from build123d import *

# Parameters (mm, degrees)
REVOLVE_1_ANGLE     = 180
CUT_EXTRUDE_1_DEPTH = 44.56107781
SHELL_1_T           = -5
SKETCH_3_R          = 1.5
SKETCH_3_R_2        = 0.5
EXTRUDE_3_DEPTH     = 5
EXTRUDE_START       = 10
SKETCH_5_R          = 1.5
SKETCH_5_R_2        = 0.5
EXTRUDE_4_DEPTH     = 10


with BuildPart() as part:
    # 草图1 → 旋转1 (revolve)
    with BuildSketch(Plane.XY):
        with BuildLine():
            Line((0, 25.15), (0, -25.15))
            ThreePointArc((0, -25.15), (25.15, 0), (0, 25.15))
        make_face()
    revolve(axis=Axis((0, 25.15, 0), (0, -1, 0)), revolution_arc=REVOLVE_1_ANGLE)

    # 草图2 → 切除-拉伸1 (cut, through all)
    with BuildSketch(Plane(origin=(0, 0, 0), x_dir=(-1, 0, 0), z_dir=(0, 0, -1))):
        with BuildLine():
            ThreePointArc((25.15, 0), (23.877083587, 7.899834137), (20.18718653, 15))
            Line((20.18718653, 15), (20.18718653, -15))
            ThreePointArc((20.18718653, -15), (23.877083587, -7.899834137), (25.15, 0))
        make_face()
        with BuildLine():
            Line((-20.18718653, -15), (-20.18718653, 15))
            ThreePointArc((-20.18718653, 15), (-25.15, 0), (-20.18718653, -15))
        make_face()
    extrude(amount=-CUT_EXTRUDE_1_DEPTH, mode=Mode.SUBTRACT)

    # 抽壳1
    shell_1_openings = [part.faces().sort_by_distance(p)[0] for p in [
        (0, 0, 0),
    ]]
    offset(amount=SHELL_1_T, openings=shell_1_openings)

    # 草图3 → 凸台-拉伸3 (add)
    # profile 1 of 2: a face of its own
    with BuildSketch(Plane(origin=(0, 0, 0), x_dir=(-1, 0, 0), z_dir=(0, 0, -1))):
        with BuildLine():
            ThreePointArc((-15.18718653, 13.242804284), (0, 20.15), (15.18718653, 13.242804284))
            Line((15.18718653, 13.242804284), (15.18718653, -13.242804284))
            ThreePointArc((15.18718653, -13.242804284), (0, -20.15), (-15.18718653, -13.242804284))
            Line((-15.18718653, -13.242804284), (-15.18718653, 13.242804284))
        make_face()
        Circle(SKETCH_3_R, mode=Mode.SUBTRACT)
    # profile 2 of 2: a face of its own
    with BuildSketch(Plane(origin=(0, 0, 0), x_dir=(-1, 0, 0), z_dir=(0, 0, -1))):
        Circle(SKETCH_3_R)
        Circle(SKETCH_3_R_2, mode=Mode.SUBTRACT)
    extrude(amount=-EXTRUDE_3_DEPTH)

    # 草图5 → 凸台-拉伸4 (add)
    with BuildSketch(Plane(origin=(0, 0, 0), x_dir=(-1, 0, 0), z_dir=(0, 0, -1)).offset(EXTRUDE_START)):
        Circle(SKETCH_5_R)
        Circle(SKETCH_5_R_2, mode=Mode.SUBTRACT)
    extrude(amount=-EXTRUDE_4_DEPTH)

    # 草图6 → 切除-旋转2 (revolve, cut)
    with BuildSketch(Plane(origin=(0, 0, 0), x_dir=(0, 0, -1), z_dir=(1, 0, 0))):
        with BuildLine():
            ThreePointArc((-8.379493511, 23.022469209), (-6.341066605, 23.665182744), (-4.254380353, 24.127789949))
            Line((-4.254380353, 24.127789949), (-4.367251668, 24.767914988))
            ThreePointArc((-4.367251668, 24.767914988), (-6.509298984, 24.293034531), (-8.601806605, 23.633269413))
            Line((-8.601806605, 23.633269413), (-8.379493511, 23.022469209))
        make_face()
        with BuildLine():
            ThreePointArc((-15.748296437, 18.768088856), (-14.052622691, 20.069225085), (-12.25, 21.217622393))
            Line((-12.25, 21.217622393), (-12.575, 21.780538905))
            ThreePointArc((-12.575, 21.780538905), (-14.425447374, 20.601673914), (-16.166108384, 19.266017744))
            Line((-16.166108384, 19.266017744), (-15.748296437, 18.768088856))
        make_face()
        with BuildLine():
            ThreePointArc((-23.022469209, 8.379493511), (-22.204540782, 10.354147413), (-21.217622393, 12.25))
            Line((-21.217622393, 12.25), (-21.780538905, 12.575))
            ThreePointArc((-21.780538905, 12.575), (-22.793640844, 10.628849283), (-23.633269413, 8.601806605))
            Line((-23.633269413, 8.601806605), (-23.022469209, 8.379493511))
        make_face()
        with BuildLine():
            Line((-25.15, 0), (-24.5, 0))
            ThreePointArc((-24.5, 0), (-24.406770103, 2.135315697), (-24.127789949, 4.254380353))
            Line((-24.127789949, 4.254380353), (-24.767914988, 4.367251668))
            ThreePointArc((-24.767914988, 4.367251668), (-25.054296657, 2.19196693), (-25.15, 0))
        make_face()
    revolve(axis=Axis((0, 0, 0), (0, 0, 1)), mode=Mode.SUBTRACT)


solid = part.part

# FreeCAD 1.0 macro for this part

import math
import FreeCAD as App
import Part
import Sketcher

V = App.Vector
Q = App.Units.Quantity


def faces_at(feature, points):
    """Names of the faces that lie closest to the given points."""
    faces = feature.Shape.Faces
    near = lambda p: min(range(len(faces)), key=lambda i: faces[i].distToShape(Part.Vertex(*p))[0])
    return sorted({f"Face{near(p) + 1}" for p in points})

doc = App.newDocument("Part")
params = doc.addObject("Spreadsheet::Sheet", "Params")
for row, (alias, value) in enumerate([
    ("sketch1_radius", "25.15 mm"),
    ("revolution_angle", "180 deg"),
    ("sketch2_height", "30 mm"),
    ("sketch2_radius", "25.15 mm"),
    ("thickness_wall", "5 mm"),
    ("sketch3_diameter", "1 mm"),
    ("sketch3_radius", "20.15 mm"),
    ("pad1_length", "5 mm"),
    ("sketch4_diameter", "3 mm"),
    ("sketch4_diameter2", "1 mm"),
    ("pad2_length", "10 mm"),
    ("sketch5_radius", "24.5 mm"),
    ("sketch5_radius2", "25.15 mm"),
    ("groove_angle", "360 deg"),
], start=1):
    params.set(f"A{row}", alias)
    params.set(f"B{row}", "=" + value)
    params.setAlias(f"B{row}", alias)

body = doc.addObject("PartDesign::Body", "Body")

# Sketch on XY plane
sketch1 = body.newObject("Sketcher::SketchObject", "Sketch")
sketch1.AttachmentSupport = (doc.getObject("XY_Plane"), [""])
sketch1.MapMode = "FlatFace"
sketch1.addGeometry([
    Part.LineSegment(V(0, 25.15, 0), V(0, -25.15, 0)),
    Part.ArcOfCircle(Part.Circle(V(0, 0, 0), V(0, 0, 1), 25.15), math.radians(-90), math.radians(90)),
], False)
sketch1.addConstraint([
    Sketcher.Constraint("Coincident", 0, 1, 1, 2),
    Sketcher.Constraint("Coincident", 1, 1, 0, 2),
    Sketcher.Constraint("Vertical", 0),
    Sketcher.Constraint("Coincident", 1, 3, -1, 1),
    Sketcher.Constraint("PointOnObject", 0, 1, -2),
    Sketcher.Constraint("Radius", 1, Q("25.15 mm")),
])
sketch1.setExpression("Constraints[5]", "Params.sketch1_radius")
revolution = body.newObject("PartDesign::Revolution", "Revolution")
revolution.Profile = sketch1
revolution.ReferenceAxis = (sketch1, ["V_Axis"])
revolution.setExpression("Angle", "Params.revolution_angle")
revolution.Reversed = True

# Sketch on XY plane
sketch2 = body.newObject("Sketcher::SketchObject", "Sketch001")
sketch2.AttachmentSupport = (doc.getObject("XY_Plane"), [""])
sketch2.MapMode = "FlatFace"
sketch2.addGeometry([
    Part.ArcOfCircle(Part.Circle(V(0, 0, 0), V(0, 0, 1), 25.15), math.radians(143.385968), math.radians(180)),  # 0
    Part.LineSegment(V(-20.187187, 15, 0), V(-20.187187, -15, 0)),  # 1
    Part.ArcOfCircle(Part.Circle(V(0, 0, 0), V(0, 0, 1), 25.15), math.radians(180), math.radians(216.614032)),  # 2
    Part.LineSegment(V(20.187187, -15, 0), V(20.187187, 15, 0)),  # 3
    Part.ArcOfCircle(Part.Circle(V(0, 0, 0), V(0, 0, 1), 25.15), math.radians(-36.614032), math.radians(36.614032)),  # 4
], False)
sketch2.addConstraint([
    Sketcher.Constraint("Coincident", 0, 1, 1, 1),
    Sketcher.Constraint("Coincident", 1, 2, 2, 2),
    Sketcher.Constraint("Tangent", 2, 1, 0, 2),
    Sketcher.Constraint("Coincident", 3, 1, 4, 1),
    Sketcher.Constraint("Coincident", 4, 2, 3, 2),
    Sketcher.Constraint("Vertical", 1),
    Sketcher.Constraint("Vertical", 3),
    Sketcher.Constraint("Coincident", 0, 3, -1, 1),
    Sketcher.Constraint("Coincident", 4, 3, -1, 1),
    Sketcher.Constraint("Equal", 0, 2),
    Sketcher.Constraint("Equal", 2, 4),
    Sketcher.Constraint("PointOnObject", 2, 1, -1),
    Sketcher.Constraint("Horizontal", 1, 2, 3, 1),
    Sketcher.Constraint("DistanceY", 1, 2, 1, 1, Q("30 mm")),
    Sketcher.Constraint("Radius", 0, Q("25.15 mm")),
])
sketch2.setExpression("Constraints[13]", "Params.sketch2_height")
sketch2.setExpression("Constraints[14]", "Params.sketch2_radius")
pocket1 = body.newObject("PartDesign::Pocket", "Pocket")
pocket1.Profile = sketch2
pocket1.Type = "ThroughAll"
pocket1.Reversed = True
doc.recompute()

thickness = body.newObject("PartDesign::Thickness", "Thickness")
thickness.Base = (pocket1, faces_at(pocket1, [(0, 0, 0)]))
thickness.setExpression("Value", "Params.thickness_wall")
thickness.Reversed = True
thickness.Join = "Arc"

# Sketch on XY plane
sketch3 = body.newObject("Sketcher::SketchObject", "Sketch002")
sketch3.AttachmentSupport = (doc.getObject("XY_Plane"), [""])
sketch3.MapMode = "FlatFace"
sketch3.addGeometry([
    Part.ArcOfCircle(Part.Circle(V(0, 0, 0), V(0, 0, 1), 20.15), math.radians(41.087523), math.radians(138.912477)),  # 0
    Part.LineSegment(V(15.187187, 13.242804, 0), V(15.187187, -13.242804, 0)),  # 1
    Part.ArcOfCircle(Part.Circle(V(0, 0, 0), V(0, 0, 1), 20.15), math.radians(-138.912477), math.radians(-41.087523)),  # 2
    Part.LineSegment(V(-15.187187, -13.242804, 0), V(-15.187187, 13.242804, 0)),  # 3
    Part.Circle(V(0, 0, 0), V(0, 0, 1), 0.5),  # 4
], False)
sketch3.addConstraint([
    Sketcher.Constraint("Coincident", 0, 1, 1, 1),
    Sketcher.Constraint("Coincident", 1, 2, 2, 2),
    Sketcher.Constraint("Coincident", 2, 1, 3, 1),
    Sketcher.Constraint("Coincident", 3, 2, 0, 2),
    Sketcher.Constraint("Vertical", 1),
    Sketcher.Constraint("Vertical", 3),
    Sketcher.Constraint("Coincident", 0, 3, -1, 1),
    Sketcher.Constraint("Coincident", 2, 3, -1, 1),
    Sketcher.Constraint("Coincident", 4, 3, -1, 1),
    Sketcher.Constraint("Equal", 0, 2),
    Sketcher.Constraint("Horizontal", 1, 2, 2, 1),
    Sketcher.Constraint("Diameter", 4, Q("1 mm")),
    Sketcher.Constraint("Radius", 0, Q("20.15 mm")),
    Sketcher.Constraint("DistanceY", 1, 2, 1, 1, Q("26.485609 mm")),
])
sketch3.setExpression("Constraints[11]", "Params.sketch3_diameter")
sketch3.setExpression("Constraints[12]", "Params.sketch3_radius")
pad1 = body.newObject("PartDesign::Pad", "Pad")
pad1.Profile = sketch3
pad1.setExpression("Length", "Params.pad1_length")

# Sketch on XY plane
sketch4 = body.newObject("Sketcher::SketchObject", "Sketch003")
sketch4.AttachmentSupport = (doc.getObject("XY_Plane"), [""])
sketch4.MapMode = "FlatFace"
sketch4.AttachmentOffset = App.Placement(V(0, 0, -10), App.Rotation())
sketch4.addGeometry([
    Part.Circle(V(0, 0, 0), V(0, 0, 1), 1.5),
    Part.Circle(V(0, 0, 0), V(0, 0, 1), 0.5),
], False)
sketch4.addConstraint([
    Sketcher.Constraint("Coincident", 0, 3, -1, 1),
    Sketcher.Constraint("Coincident", 1, 3, -1, 1),
    Sketcher.Constraint("Diameter", 0, Q("3 mm")),
    Sketcher.Constraint("Diameter", 1, Q("1 mm")),
])
sketch4.setExpression("Constraints[2]", "Params.sketch4_diameter")
sketch4.setExpression("Constraints[3]", "Params.sketch4_diameter2")
pad2 = body.newObject("PartDesign::Pad", "Pad001")
pad2.Profile = sketch4
pad2.setExpression("Length", "Params.pad2_length")

# Sketch on YZ plane
sketch5 = body.newObject("Sketcher::SketchObject", "Sketch004")
sketch5.AttachmentSupport = (doc.getObject("YZ_Plane"), [""])
sketch5.MapMode = "FlatFace"
sketch5.addGeometry([
    Part.ArcOfCircle(Part.Circle(V(0, 0, 0), V(0, 0, 1), 24.5), math.radians(10), math.radians(20)),  # 0
    Part.LineSegment(V(24.12779, 4.25438, 0), V(24.767915, 4.367252, 0)),  # 1
    Part.ArcOfCircle(Part.Circle(V(0, 0, 0), V(0, 0, 1), 25.15), math.radians(10), math.radians(20)),  # 2
    Part.LineSegment(V(23.633269, 8.601807, 0), V(23.022469, 8.379494, 0)),  # 3
    Part.ArcOfCircle(Part.Circle(V(0, 0, 0), V(0, 0, 1), 24.5), math.radians(30), math.radians(40)),  # 4
    Part.LineSegment(V(21.217622, 12.25, 0), V(21.780539, 12.575, 0)),  # 5
    Part.ArcOfCircle(Part.Circle(V(0, 0, 0), V(0, 0, 1), 25.15), math.radians(30), math.radians(40)),  # 6
    Part.LineSegment(V(19.266018, 16.166108, 0), V(18.768089, 15.748296, 0)),  # 7
    Part.ArcOfCircle(Part.Circle(V(0, 0, 0), V(0, 0, 1), 24.5), math.radians(60), math.radians(70)),  # 8
    Part.LineSegment(V(12.25, 21.217622, 0), V(12.575, 21.780539, 0)),  # 9
    Part.ArcOfCircle(Part.Circle(V(0, 0, 0), V(0, 0, 1), 25.15), math.radians(60), math.radians(70)),  # 10
    Part.LineSegment(V(8.601807, 23.633269, 0), V(8.379494, 23.022469, 0)),  # 11
    Part.LineSegment(V(0, 25.15, 0), V(0, 24.5, 0)),  # 12
    Part.ArcOfCircle(Part.Circle(V(0, 0, 0), V(0, 0, 1), 24.5), math.radians(80), math.radians(90)),  # 13
    Part.LineSegment(V(4.25438, 24.12779, 0), V(4.367252, 24.767915, 0)),  # 14
    Part.ArcOfCircle(Part.Circle(V(0, 0, 0), V(0, 0, 1), 25.15), math.radians(80), math.radians(90)),  # 15
], False)
sketch5.addConstraint([
    Sketcher.Constraint("Coincident", 0, 1, 1, 1),
    Sketcher.Constraint("Coincident", 1, 2, 2, 1),
    Sketcher.Constraint("Coincident", 2, 2, 3, 1),
    Sketcher.Constraint("Coincident", 3, 2, 0, 2),
    Sketcher.Constraint("Coincident", 4, 1, 5, 1),
    Sketcher.Constraint("Coincident", 5, 2, 6, 1),
    Sketcher.Constraint("Coincident", 6, 2, 7, 1),
    Sketcher.Constraint("Coincident", 7, 2, 4, 2),
    Sketcher.Constraint("Coincident", 8, 1, 9, 1),
    Sketcher.Constraint("Coincident", 9, 2, 10, 1),
    Sketcher.Constraint("Coincident", 10, 2, 11, 1),
    Sketcher.Constraint("Coincident", 11, 2, 8, 2),
    Sketcher.Constraint("Coincident", 12, 2, 13, 2),
    Sketcher.Constraint("Coincident", 13, 1, 14, 1),
    Sketcher.Constraint("Coincident", 14, 2, 15, 1),
    Sketcher.Constraint("Coincident", 15, 2, 12, 1),
    Sketcher.Constraint("Vertical", 12),
    Sketcher.Constraint("Coincident", 0, 3, -1, 1),
    Sketcher.Constraint("Coincident", 2, 3, -1, 1),
    Sketcher.Constraint("Coincident", 4, 3, -1, 1),
    Sketcher.Constraint("Coincident", 6, 3, -1, 1),
    Sketcher.Constraint("Coincident", 8, 3, -1, 1),
    Sketcher.Constraint("Coincident", 10, 3, -1, 1),
    Sketcher.Constraint("Coincident", 13, 3, -1, 1),
    Sketcher.Constraint("Coincident", 15, 3, -1, 1),
    Sketcher.Constraint("Equal", 0, 4),
    Sketcher.Constraint("Equal", 2, 6),
    Sketcher.Constraint("Equal", 4, 8),
    Sketcher.Constraint("Equal", 6, 10),
    Sketcher.Constraint("Equal", 8, 13),
    Sketcher.Constraint("Equal", 10, 15),
    Sketcher.Constraint("PointOnObject", 12, 2, -2),
    Sketcher.Constraint("Radius", 0, Q("24.5 mm")),
    Sketcher.Constraint("Angle", 1, Q("10 deg")),
    Sketcher.Constraint("Angle", 3, Q("-160 deg")),
    Sketcher.Constraint("Angle", 5, Q("30 deg")),
    Sketcher.Constraint("Angle", 7, Q("-140 deg")),
    Sketcher.Constraint("Angle", 9, Q("60 deg")),
    Sketcher.Constraint("Angle", 11, Q("-110 deg")),
    Sketcher.Constraint("Angle", 14, Q("80 deg")),
    Sketcher.Constraint("Radius", 2, Q("25.15 mm")),
    Sketcher.Constraint("DistanceY", -1, 1, 4, 1, Q("12.25 mm")),
    Sketcher.Constraint("DistanceX", -1, 1, 8, 1, Q("12.25 mm")),
    Sketcher.Constraint("DistanceY", 2, 2, 6, 2, Q("7.564302 mm")),
    Sketcher.Constraint("DistanceX", -1, 1, 0, 1, Q("24.12779 mm")),
    Sketcher.Constraint("DistanceX", -1, 1, 2, 2, Q("23.633269 mm")),
    Sketcher.Constraint("DistanceY", -1, 1, 10, 2, Q("23.633269 mm")),
    Sketcher.Constraint("DistanceX", -1, 1, 13, 1, Q("4.25438 mm")),
])
sketch5.setExpression("Constraints[32]", "Params.sketch5_radius")
sketch5.setExpression("Constraints[40]", "Params.sketch5_radius2")
groove = body.newObject("PartDesign::Groove", "Groove")
groove.Profile = sketch5
groove.ReferenceAxis = (sketch5, ["V_Axis"])
groove.setExpression("Angle", "Params.groove_angle")

doc.recompute()
